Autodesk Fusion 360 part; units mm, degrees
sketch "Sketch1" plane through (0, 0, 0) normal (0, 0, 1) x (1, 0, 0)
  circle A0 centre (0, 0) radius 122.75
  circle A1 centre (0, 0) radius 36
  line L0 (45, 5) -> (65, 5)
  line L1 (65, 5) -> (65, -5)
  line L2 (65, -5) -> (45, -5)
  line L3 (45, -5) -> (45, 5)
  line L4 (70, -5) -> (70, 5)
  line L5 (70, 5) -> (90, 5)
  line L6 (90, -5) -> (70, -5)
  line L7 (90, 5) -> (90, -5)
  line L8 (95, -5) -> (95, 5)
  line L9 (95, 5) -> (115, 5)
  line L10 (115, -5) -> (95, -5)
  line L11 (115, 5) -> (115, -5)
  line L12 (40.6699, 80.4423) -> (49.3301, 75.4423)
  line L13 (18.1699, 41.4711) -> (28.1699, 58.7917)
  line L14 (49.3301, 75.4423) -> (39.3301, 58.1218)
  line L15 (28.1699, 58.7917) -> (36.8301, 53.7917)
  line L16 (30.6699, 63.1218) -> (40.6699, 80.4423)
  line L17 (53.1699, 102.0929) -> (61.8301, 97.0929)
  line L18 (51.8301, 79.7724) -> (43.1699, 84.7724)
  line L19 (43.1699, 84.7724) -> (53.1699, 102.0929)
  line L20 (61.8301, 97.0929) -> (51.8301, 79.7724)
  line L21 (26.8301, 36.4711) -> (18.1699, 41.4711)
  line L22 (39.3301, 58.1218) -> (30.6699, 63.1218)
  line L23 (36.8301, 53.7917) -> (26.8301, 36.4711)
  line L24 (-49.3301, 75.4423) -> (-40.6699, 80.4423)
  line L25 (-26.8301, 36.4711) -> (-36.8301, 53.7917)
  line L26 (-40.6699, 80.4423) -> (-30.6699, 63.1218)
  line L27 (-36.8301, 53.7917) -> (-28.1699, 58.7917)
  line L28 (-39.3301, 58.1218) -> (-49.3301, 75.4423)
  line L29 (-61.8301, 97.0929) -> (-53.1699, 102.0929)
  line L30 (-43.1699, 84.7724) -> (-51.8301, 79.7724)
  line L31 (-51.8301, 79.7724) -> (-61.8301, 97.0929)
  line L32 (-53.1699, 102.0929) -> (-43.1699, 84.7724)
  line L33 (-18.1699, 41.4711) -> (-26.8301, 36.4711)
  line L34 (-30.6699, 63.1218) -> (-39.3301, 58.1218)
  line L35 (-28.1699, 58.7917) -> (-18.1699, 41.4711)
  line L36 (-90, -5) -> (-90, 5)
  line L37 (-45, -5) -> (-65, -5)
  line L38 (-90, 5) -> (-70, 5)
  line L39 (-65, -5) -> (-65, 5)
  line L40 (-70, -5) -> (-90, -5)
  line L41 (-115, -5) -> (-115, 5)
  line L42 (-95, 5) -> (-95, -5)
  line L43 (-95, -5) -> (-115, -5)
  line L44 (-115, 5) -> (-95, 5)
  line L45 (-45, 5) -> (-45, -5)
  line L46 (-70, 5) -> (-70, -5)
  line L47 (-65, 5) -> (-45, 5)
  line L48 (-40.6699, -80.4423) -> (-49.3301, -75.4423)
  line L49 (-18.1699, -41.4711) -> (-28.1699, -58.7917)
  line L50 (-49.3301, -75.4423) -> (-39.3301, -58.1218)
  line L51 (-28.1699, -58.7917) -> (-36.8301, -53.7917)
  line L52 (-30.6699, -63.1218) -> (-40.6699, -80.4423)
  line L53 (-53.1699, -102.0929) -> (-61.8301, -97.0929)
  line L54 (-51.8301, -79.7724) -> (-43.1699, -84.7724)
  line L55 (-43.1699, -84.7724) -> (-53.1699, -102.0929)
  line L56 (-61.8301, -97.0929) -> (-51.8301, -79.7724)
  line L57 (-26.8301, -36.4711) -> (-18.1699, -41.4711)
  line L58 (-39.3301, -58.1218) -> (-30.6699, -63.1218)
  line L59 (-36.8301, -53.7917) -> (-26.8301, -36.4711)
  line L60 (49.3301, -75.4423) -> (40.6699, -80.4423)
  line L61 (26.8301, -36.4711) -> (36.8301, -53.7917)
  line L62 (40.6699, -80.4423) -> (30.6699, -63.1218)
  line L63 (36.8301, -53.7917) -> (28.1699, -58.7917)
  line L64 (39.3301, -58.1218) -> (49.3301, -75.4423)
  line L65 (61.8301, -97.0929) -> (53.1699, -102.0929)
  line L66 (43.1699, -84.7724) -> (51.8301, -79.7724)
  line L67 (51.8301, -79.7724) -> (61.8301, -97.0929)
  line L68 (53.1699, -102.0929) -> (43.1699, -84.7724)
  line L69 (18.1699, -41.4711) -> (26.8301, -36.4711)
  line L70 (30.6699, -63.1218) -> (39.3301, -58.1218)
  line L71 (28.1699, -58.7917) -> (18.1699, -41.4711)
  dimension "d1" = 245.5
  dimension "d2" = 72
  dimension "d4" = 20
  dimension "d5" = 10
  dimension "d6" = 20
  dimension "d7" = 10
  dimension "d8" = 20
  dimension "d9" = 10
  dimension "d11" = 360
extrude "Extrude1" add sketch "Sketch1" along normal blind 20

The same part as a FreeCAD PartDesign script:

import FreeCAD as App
import Part
import Sketcher

V = App.Vector
Q = App.Units.Quantity


def add_polygon(sketch, points):
    """Adds a closed chain of lines whose ends are joined by coincident constraints."""
    first, n = sketch.GeometryCount, len(points)
    for a, b in zip(points, points[1:] + points[:1]):
        sketch.addGeometry(Part.LineSegment(App.Vector(*a, 0), App.Vector(*b, 0)), False)
    for i in range(n):
        sketch.addConstraint(Sketcher.Constraint("Coincident", first + i, 2, first + (i + 1) % n, 1))

doc = App.newDocument("Part")
body = doc.addObject("PartDesign::Body", "Body")

# Sketch on XY plane
sketch1 = doc.addObject("Sketcher::SketchObject", "Sketch")
body.addObject(sketch1)
sketch1.AttachmentSupport = (doc.XY_Plane, [""])
sketch1.MapMode = "FlatFace"
sketch1.addGeometry(Part.Circle(V(0, 0, 0), V(0, 0, 1), 123), False)  # 0
add_polygon(sketch1, [(-43, -85), (-53, -102), (-62, -97), (-52, -80)])  # lines 1-4
add_polygon(sketch1, [(-31, -63), (-41, -80), (-49, -75), (-39, -58)])  # lines 5-8
add_polygon(sketch1, [(-95, -5), (-115, -5), (-115, 5), (-95, 5)])  # lines 9-12
add_polygon(sketch1, [(-70, -5), (-90, -5), (-90, 5), (-70, 5)])  # lines 13-16
add_polygon(sketch1, [(-27, -36), (-18, -41), (-28, -59), (-37, -54)])  # lines 17-20
add_polygon(sketch1, [(-45, 5), (-45, -5), (-65, -5), (-65, 5)])  # lines 21-24
sketch1.addGeometry(Part.Circle(V(0, 0, 0), V(0, 0, 1), 36), False)  # 25
add_polygon(sketch1, [(52, -80), (62, -97), (53, -102), (43, -85)])  # lines 26-29
add_polygon(sketch1, [(39, -58), (49, -75), (41, -80), (31, -63)])  # lines 30-33
add_polygon(sketch1, [(18, -41), (27, -36), (37, -54), (28, -59)])  # lines 34-37
add_polygon(sketch1, [(45, -5), (45, 5), (65, 5), (65, -5)])  # lines 38-41
add_polygon(sketch1, [(90, -5), (70, -5), (70, 5), (90, 5)])  # lines 42-45
add_polygon(sketch1, [(115, -5), (95, -5), (95, 5), (115, 5)])  # lines 46-49
add_polygon(sketch1, [(-18, 41), (-27, 36), (-37, 54), (-28, 59)])  # lines 50-53
add_polygon(sketch1, [(-39, 58), (-49, 75), (-41, 80), (-31, 63)])  # lines 54-57
add_polygon(sketch1, [(-52, 80), (-62, 97), (-53, 102), (-43, 85)])  # lines 58-61
add_polygon(sketch1, [(27, 36), (18, 41), (28, 59), (37, 54)])  # lines 62-65
add_polygon(sketch1, [(31, 63), (41, 80), (49, 75), (39, 58)])  # lines 66-69
add_polygon(sketch1, [(43, 85), (53, 102), (62, 97), (52, 80)])  # lines 70-73
sketch1.addConstraint([
    Sketcher.Constraint("Horizontal", 9),
    Sketcher.Constraint("Vertical", 10),
    Sketcher.Constraint("Horizontal", 11),
    Sketcher.Constraint("Vertical", 12),
    Sketcher.Constraint("Horizontal", 13),
    Sketcher.Constraint("Vertical", 14),
    Sketcher.Constraint("Horizontal", 15),
    Sketcher.Constraint("Vertical", 16),
    Sketcher.Constraint("Vertical", 21),
    Sketcher.Constraint("Horizontal", 22),
    Sketcher.Constraint("Vertical", 23),
    Sketcher.Constraint("Horizontal", 24),
    Sketcher.Constraint("Vertical", 38),
    Sketcher.Constraint("Horizontal", 39),
    Sketcher.Constraint("Vertical", 40),
    Sketcher.Constraint("Horizontal", 41),
    Sketcher.Constraint("Horizontal", 42),
    Sketcher.Constraint("Vertical", 43),
    Sketcher.Constraint("Horizontal", 44),
    Sketcher.Constraint("Vertical", 45),
    Sketcher.Constraint("Horizontal", 46),
    Sketcher.Constraint("Vertical", 47),
    Sketcher.Constraint("Horizontal", 48),
    Sketcher.Constraint("Vertical", 49),
    Sketcher.Constraint("Coincident", 0, 3, -1, 1),
    Sketcher.Constraint("Coincident", 25, 3, -1, 1),
    Sketcher.Constraint("Symmetric", 21, 2, 38, 2, -1, 1),
    Sketcher.Constraint("Symmetric", 23, 2, 40, 2, -1, 1),
    Sketcher.Constraint("Symmetric", 15, 2, 42, 2, -1, 1),
    Sketcher.Constraint("Symmetric", 13, 2, 44, 2, -1, 1),
    Sketcher.Constraint("Symmetric", 11, 2, 46, 2, -1, 1),
    Sketcher.Constraint("Symmetric", 9, 2, 48, 2, -1, 1),
    Sketcher.Constraint("Symmetric", 34, 2, 50, 2, -1, 1),
    Sketcher.Constraint("Symmetric", 35, 2, 51, 2, -1, 1),
    Sketcher.Constraint("Symmetric", 36, 2, 52, 2, -1, 1),
    Sketcher.Constraint("Symmetric", 37, 2, 53, 2, -1, 1),
    Sketcher.Constraint("Symmetric", 30, 2, 54, 2, -1, 1),
    Sketcher.Constraint("Symmetric", 31, 2, 55, 2, -1, 1),
    Sketcher.Constraint("Symmetric", 32, 2, 56, 2, -1, 1),
    Sketcher.Constraint("Symmetric", 33, 2, 57, 2, -1, 1),
    Sketcher.Constraint("Symmetric", 26, 2, 58, 2, -1, 1),
    Sketcher.Constraint("Symmetric", 27, 2, 59, 2, -1, 1),
    Sketcher.Constraint("Symmetric", 28, 2, 60, 2, -1, 1),
    Sketcher.Constraint("Symmetric", 29, 2, 61, 2, -1, 1),
    Sketcher.Constraint("Symmetric", 17, 2, 62, 2, -1, 1),
    Sketcher.Constraint("Symmetric", 18, 2, 63, 2, -1, 1),
    Sketcher.Constraint("Symmetric", 19, 2, 64, 2, -1, 1),
    Sketcher.Constraint("Symmetric", 20, 2, 65, 2, -1, 1),
    Sketcher.Constraint("Symmetric", 5, 2, 66, 2, -1, 1),
    Sketcher.Constraint("Symmetric", 6, 2, 67, 2, -1, 1),
    Sketcher.Constraint("Symmetric", 7, 2, 68, 2, -1, 1),
    Sketcher.Constraint("Symmetric", 8, 2, 69, 2, -1, 1),
    Sketcher.Constraint("Symmetric", 1, 2, 70, 2, -1, 1),
    Sketcher.Constraint("Symmetric", 2, 2, 71, 2, -1, 1),
    Sketcher.Constraint("Symmetric", 3, 2, 72, 2, -1, 1),
    Sketcher.Constraint("Symmetric", 4, 2, 73, 2, -1, 1),
    Sketcher.Constraint("Symmetric", 2, 2, 26, 2, -2),
    Sketcher.Constraint("Symmetric", 1, 2, 27, 2, -2),
    Sketcher.Constraint("Symmetric", 4, 2, 28, 2, -2),
    Sketcher.Constraint("Symmetric", 3, 2, 29, 2, -2),
    Sketcher.Constraint("Symmetric", 6, 2, 30, 2, -2),
    Sketcher.Constraint("Symmetric", 5, 2, 31, 2, -2),
    Sketcher.Constraint("Symmetric", 8, 2, 32, 2, -2),
    Sketcher.Constraint("Symmetric", 7, 2, 33, 2, -2),
    Sketcher.Constraint("Symmetric", 20, 2, 34, 2, -2),
    Sketcher.Constraint("Symmetric", 19, 2, 35, 2, -2),
    Sketcher.Constraint("Symmetric", 18, 2, 36, 2, -2),
    Sketcher.Constraint("Symmetric", 17, 2, 37, 2, -2),
    Sketcher.Constraint("Perpendicular", 1, 2),
    Sketcher.Constraint("Perpendicular", 2, 3),
    Sketcher.Constraint("Perpendicular", 3, 4),
    Sketcher.Constraint("Perpendicular", 4, 5),
    Sketcher.Constraint("Perpendicular", 5, 6),
    Sketcher.Constraint("Perpendicular", 6, 7),
    Sketcher.Constraint("Perpendicular", 7, 8),
    Sketcher.Constraint("Parallel", 8, 17),
    Sketcher.Constraint("Perpendicular", 17, 18),
    Sketcher.Constraint("Perpendicular", 18, 19),
    Sketcher.Constraint("Perpendicular", 19, 20),
    Sketcher.Constraint("Horizontal", 12, 2, 13, 2),
    Sketcher.Constraint("Horizontal", 11, 2, 14, 2),
    Sketcher.Constraint("Horizontal", 16, 2, 21, 2),
    Sketcher.Constraint("Horizontal", 15, 2, 23, 2),
    Sketcher.Constraint("Horizontal", 24, 2, 38, 2),
    Sketcher.Constraint("Equal", 11, 13),
    Sketcher.Constraint("Equal", 15, 22),
    Sketcher.Constraint("Equal", 3, 5),
    Sketcher.Constraint("Equal", 4, 6),
    Sketcher.Constraint("Equal", 8, 17),
    Sketcher.Constraint("Equal", 7, 18),
    Sketcher.Constraint("Diameter", 25, 72.0),
    Sketcher.Constraint("Diameter", 0, 245.5),
    Sketcher.Constraint("DistanceX", 9, 2, 9, 1, 20.0),
    Sketcher.Constraint("DistanceY", 10, 1, 10, 2, 10.0),
    Sketcher.Constraint("Distance", 1, 20.0),
    Sketcher.Constraint("Distance", 2, 10.0),
    Sketcher.Constraint("Angle", 1, Q("-120 deg")),
    Sketcher.Constraint("DistanceX", 9, 2, -1, 1, 115.0),
    Sketcher.Constraint("DistanceX", 13, 2, -1, 1, 90.0),
    Sketcher.Constraint("DistanceX", 21, 2, -1, 1, 45.0),
    Sketcher.Constraint("DistanceX", 1, 2, -1, 1, 53.17),
    Sketcher.Constraint("DistanceX", 5, 2, -1, 1, 40.67),
    Sketcher.Constraint("DistanceX", 17, 2, -1, 1, 18.17),
    Sketcher.Constraint("DistanceY", 1, 2, -1, 1, 102.093),
    Sketcher.Constraint("DistanceY", 17, 2, -1, 1, 41.471),
    Sketcher.Constraint("DistanceY", 5, 2, -1, 1, 80.4423),
])
pad1 = doc.addObject("PartDesign::Pad", "Pad")
body.addObject(pad1)
pad1.Profile = sketch1
pad1.Length = 20

doc.recompute()
